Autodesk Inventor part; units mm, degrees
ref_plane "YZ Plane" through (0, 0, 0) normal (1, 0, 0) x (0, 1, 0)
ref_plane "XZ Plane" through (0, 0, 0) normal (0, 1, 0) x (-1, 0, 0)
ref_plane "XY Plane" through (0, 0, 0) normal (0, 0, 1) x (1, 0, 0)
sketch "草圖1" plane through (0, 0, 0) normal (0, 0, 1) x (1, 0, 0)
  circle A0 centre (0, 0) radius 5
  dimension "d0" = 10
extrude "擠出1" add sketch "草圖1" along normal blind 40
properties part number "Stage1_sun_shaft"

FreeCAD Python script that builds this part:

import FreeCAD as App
import Part
import Sketcher

V = App.Vector

doc = App.newDocument("Part")
params = doc.addObject("Spreadsheet::Sheet", "Params")
for row, (alias, value) in enumerate([
    ("sketch1_diameter", "10 mm"),
    ("pad1_length", "40 mm"),
], start=1):
    params.set(f"A{row}", alias)
    params.set(f"B{row}", "=" + value)
    params.setAlias(f"B{row}", alias)

body = doc.addObject("PartDesign::Body", "Body")

sketch1 = doc.addObject("Sketcher::SketchObject", "Sketch")
body.addObject(sketch1)
sketch1.AttachmentSupport = (doc.XY_Plane, [""])
sketch1.MapMode = "FlatFace"
sketch1.addGeometry(Part.Circle(V(0, 0, 0), V(0, 0, 1), 5), False)
sketch1.addConstraint([
    Sketcher.Constraint("Coincident", 0, 3, -1, 1),
    Sketcher.Constraint("Diameter", 0, 10.0),
])
sketch1.setExpression("Constraints[1]", "Params.sketch1_diameter")
pad1 = doc.addObject("PartDesign::Pad", "Pad")
body.addObject(pad1)
pad1.Profile = sketch1
pad1.setExpression("Length", "Params.pad1_length")

doc.recompute()
